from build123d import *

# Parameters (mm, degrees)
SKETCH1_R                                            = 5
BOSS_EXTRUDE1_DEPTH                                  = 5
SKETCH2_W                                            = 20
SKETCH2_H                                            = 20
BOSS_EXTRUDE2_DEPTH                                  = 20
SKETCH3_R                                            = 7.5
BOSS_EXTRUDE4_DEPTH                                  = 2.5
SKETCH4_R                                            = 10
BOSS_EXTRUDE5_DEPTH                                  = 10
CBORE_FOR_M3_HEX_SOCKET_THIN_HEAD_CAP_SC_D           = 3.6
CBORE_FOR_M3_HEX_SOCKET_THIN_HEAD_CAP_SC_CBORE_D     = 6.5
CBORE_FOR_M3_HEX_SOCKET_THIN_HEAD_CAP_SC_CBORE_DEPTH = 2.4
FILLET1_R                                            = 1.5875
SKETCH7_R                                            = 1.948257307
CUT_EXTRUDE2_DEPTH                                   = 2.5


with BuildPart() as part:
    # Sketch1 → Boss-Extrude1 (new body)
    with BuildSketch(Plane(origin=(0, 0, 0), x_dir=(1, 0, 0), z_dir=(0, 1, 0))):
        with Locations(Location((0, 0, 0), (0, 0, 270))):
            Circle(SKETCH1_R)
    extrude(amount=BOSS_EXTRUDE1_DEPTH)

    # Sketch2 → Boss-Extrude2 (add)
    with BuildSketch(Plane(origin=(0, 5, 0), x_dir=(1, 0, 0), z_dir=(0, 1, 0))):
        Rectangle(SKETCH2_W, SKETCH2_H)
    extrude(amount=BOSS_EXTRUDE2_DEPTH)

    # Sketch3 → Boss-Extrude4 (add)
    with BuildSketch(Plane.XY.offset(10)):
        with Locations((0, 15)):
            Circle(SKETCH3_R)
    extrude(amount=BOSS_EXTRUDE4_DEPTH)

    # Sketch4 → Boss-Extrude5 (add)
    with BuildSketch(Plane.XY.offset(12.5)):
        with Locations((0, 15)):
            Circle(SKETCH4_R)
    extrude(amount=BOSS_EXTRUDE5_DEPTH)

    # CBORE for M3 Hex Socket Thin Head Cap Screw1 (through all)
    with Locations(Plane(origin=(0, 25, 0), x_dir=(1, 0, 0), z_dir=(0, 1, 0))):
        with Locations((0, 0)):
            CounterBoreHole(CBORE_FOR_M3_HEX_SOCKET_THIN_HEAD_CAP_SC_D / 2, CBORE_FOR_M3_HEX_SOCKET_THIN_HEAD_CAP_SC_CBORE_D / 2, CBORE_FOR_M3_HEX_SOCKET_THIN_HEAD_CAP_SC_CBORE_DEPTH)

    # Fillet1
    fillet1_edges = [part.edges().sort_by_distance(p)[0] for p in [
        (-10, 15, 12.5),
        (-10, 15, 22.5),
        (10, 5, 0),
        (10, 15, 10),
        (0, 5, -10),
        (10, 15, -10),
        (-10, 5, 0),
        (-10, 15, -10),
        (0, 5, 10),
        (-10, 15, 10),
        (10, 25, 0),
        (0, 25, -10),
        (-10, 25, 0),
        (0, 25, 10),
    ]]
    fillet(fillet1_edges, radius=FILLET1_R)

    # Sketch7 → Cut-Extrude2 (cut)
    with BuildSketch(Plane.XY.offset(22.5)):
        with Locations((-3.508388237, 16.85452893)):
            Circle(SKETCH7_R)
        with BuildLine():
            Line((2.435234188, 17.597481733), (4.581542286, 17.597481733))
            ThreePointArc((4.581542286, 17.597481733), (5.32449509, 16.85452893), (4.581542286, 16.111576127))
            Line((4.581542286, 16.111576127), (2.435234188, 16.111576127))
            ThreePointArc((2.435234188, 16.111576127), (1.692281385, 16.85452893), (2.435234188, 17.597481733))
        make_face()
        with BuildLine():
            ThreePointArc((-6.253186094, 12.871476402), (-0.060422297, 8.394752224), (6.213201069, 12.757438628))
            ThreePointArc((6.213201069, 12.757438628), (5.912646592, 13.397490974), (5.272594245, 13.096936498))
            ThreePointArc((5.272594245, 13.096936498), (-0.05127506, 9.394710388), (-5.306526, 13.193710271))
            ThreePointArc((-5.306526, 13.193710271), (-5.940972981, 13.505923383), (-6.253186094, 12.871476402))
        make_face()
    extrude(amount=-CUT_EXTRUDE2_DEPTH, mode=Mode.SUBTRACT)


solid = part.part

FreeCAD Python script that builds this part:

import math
import FreeCAD as App
import Part
import Sketcher
from FreeCAD import Vector


def edges_at(feature, points):
    """Names of the edges that pass closest to the given points."""
    edges = feature.Shape.Edges
    near = lambda p: min(range(len(edges)), key=lambda i: edges[i].distToShape(Part.Vertex(*p))[0])
    return sorted({f"Edge{near(p) + 1}" for p in points})

doc = App.newDocument("Part")
params = doc.addObject("Spreadsheet::Sheet", "Params")
for row, (alias, value) in enumerate([
    ("sketch1_diameter", "10 mm"),
    ("pad1_length", "5 mm"),
    ("sketch2_width", "20 mm"),
    ("pad2_length", "20 mm"),
    ("sketch3_diameter", "15 mm"),
    ("pad3_length", "2.5 mm"),
    ("sketch4_diameter", "20 mm"),
    ("pad4_length", "10 mm"),
    ("sketch5_diameter", "3.6 mm"),
    ("hole_diameter", "3.6 mm"),
    ("hole_cbore_diameter", "6.5 mm"),
    ("hole_cbore_depth", "2.4 mm"),
    ("fillet_radius", "1.5875 mm"),
    ("sketch6_radius", "0.5 mm"),
    ("pocket1_length", "2.5 mm"),
], start=1):
    params.set(f"A{row}", alias)
    params.set(f"B{row}", "=" + value)
    params.setAlias(f"B{row}", alias)

body = doc.addObject("PartDesign::Body", "Body")

# Sketch on XZ plane
sketch1 = doc.addObject("Sketcher::SketchObject", "Sketch")
body.addObject(sketch1)
sketch1.AttachmentSupport = (doc.XZ_Plane, [""])
sketch1.MapMode = "FlatFace"
sketch1.addGeometry(Part.Circle(Vector(0, 0, 0), Vector(0, 0, 1), 5), False)
sketch1.addConstraint(Sketcher.Constraint("Coincident", 0, 3, -1, 1))
sketch1.addConstraint(Sketcher.Constraint("Diameter", 0, 10.0))
sketch1.setExpression("Constraints[1]", "Params.sketch1_diameter")
pad1 = doc.addObject("PartDesign::Pad", "Pad")
body.addObject(pad1)
pad1.Profile = sketch1
pad1.setExpression("Length", "Params.pad1_length")
pad1.Reversed = True

# Sketch on XZ plane
sketch2 = doc.addObject("Sketcher::SketchObject", "Sketch001")
body.addObject(sketch2)
sketch2.AttachmentSupport = (doc.XZ_Plane, [""])
sketch2.MapMode = "FlatFace"
sketch2.AttachmentOffset = App.Placement(Vector(0, 0, -5), App.Rotation())
sketch2.addGeometry(Part.LineSegment(Vector(-10, -10, 0), Vector(-10, 10, 0)), False)
sketch2.addGeometry(Part.LineSegment(Vector(-10, 10, 0), Vector(10, 10, 0)), False)
sketch2.addGeometry(Part.LineSegment(Vector(10, 10, 0), Vector(10, -10, 0)), False)
sketch2.addGeometry(Part.LineSegment(Vector(10, -10, 0), Vector(-10, -10, 0)), False)
sketch2.addConstraint(Sketcher.Constraint("Coincident", 0, 2, 1, 1))
sketch2.addConstraint(Sketcher.Constraint("Coincident", 1, 2, 2, 1))
sketch2.addConstraint(Sketcher.Constraint("Coincident", 2, 2, 3, 1))
sketch2.addConstraint(Sketcher.Constraint("Coincident", 3, 2, 0, 1))
sketch2.addConstraint(Sketcher.Constraint("Vertical", 0))
sketch2.addConstraint(Sketcher.Constraint("Horizontal", 1))
sketch2.addConstraint(Sketcher.Constraint("Vertical", 2))
sketch2.addConstraint(Sketcher.Constraint("Horizontal", 3))
sketch2.addConstraint(Sketcher.Constraint("Symmetric", 0, 2, 2, 2, -1, 1))
sketch2.addConstraint(Sketcher.Constraint("Equal", 3, 0))
sketch2.addConstraint(Sketcher.Constraint("DistanceX", 1, 1, 1, 2, 20.0))
sketch2.setExpression("Constraints[10]", "Params.sketch2_width")
pad2 = doc.addObject("PartDesign::Pad", "Pad001")
body.addObject(pad2)
pad2.Profile = sketch2
pad2.setExpression("Length", "Params.pad2_length")
pad2.Reversed = True

# Sketch on XY plane
sketch3 = doc.addObject("Sketcher::SketchObject", "Sketch002")
body.addObject(sketch3)
sketch3.AttachmentSupport = (doc.XY_Plane, [""])
sketch3.MapMode = "FlatFace"
sketch3.AttachmentOffset = App.Placement(Vector(0, 0, 10), App.Rotation())
sketch3.addGeometry(Part.Circle(Vector(0, 15, 0), Vector(0, 0, 1), 7.5), False)
sketch3.addConstraint(Sketcher.Constraint("PointOnObject", 0, 3, -2))
sketch3.addConstraint(Sketcher.Constraint("Diameter", 0, 15.0))
sketch3.addConstraint(Sketcher.Constraint("DistanceY", -1, 1, 0, 3, 15.0))
sketch3.setExpression("Constraints[1]", "Params.sketch3_diameter")
pad3 = doc.addObject("PartDesign::Pad", "Pad002")
body.addObject(pad3)
pad3.Profile = sketch3
pad3.setExpression("Length", "Params.pad3_length")

# Sketch on XY plane
sketch4 = doc.addObject("Sketcher::SketchObject", "Sketch003")
body.addObject(sketch4)
sketch4.AttachmentSupport = (doc.XY_Plane, [""])
sketch4.MapMode = "FlatFace"
sketch4.AttachmentOffset = App.Placement(Vector(0, 0, 12.5), App.Rotation())
sketch4.addGeometry(Part.Circle(Vector(0, 15, 0), Vector(0, 0, 1), 10), False)
sketch4.addConstraint(Sketcher.Constraint("PointOnObject", 0, 3, -2))
sketch4.addConstraint(Sketcher.Constraint("Diameter", 0, 20.0))
sketch4.addConstraint(Sketcher.Constraint("DistanceY", -1, 1, 0, 3, 15.0))
sketch4.setExpression("Constraints[1]", "Params.sketch4_diameter")
pad4 = doc.addObject("PartDesign::Pad", "Pad003")
body.addObject(pad4)
pad4.Profile = sketch4
pad4.setExpression("Length", "Params.pad4_length")

# Sketch on XZ plane
sketch5 = doc.addObject("Sketcher::SketchObject", "Sketch004")
body.addObject(sketch5)
sketch5.AttachmentSupport = (doc.XZ_Plane, [""])
sketch5.MapMode = "FlatFace"
sketch5.AttachmentOffset = App.Placement(Vector(0, 0, -25), App.Rotation())
sketch5.addGeometry(Part.Circle(Vector(0, 0, 0), Vector(0, 0, 1), 1.8), False)
sketch5.addConstraint(Sketcher.Constraint("Coincident", 0, 3, -1, 1))
sketch5.addConstraint(Sketcher.Constraint("Diameter", 0, 3.6))
sketch5.setExpression("Constraints[1]", "Params.sketch5_diameter")
doc.recompute()
hole = doc.addObject("PartDesign::Hole", "Hole")
body.addObject(hole)
hole.Profile = sketch5
hole.ThreadType = "None"
hole.setExpression("Diameter", "Params.hole_diameter")
hole.DepthType = "ThroughAll"
hole.HoleCutType = "Counterbore"
hole.setExpression("HoleCutDiameter", "Params.hole_cbore_diameter")
hole.setExpression("HoleCutDepth", "Params.hole_cbore_depth")
hole.Reversed = True
doc.recompute()

fillet = doc.addObject("PartDesign::Fillet", "Fillet")
body.addObject(fillet)
fillet.Base = (hole, edges_at(hole, [
    (-10, 15, 12.5),
    (-10, 15, 22.5),
    (10, 5, 0),
    (10, 15, 10),
    (0, 5, -10),
    (10, 15, -10),
    (-10, 5, 0),
    (-10, 15, -10),
    (0, 5, 10),
    (-10, 15, 10),
    (10, 25, 0),
    (0, 25, -10),
    (-10, 25, 0),
    (0, 25, 10),
]))
fillet.setExpression("Radius", "Params.fillet_radius")

# Sketch on XY plane
sketch6 = doc.addObject("Sketcher::SketchObject", "Sketch005")
body.addObject(sketch6)
sketch6.AttachmentSupport = (doc.XY_Plane, [""])
sketch6.MapMode = "FlatFace"
sketch6.AttachmentOffset = App.Placement(Vector(0, 0, 22.5), App.Rotation())
sketch6.addGeometry(Part.Circle(Vector(-3.508388, 16.854529, 0), Vector(0, 0, 1), 1.948257), False)
sketch6.addGeometry(Part.LineSegment(Vector(4.581542, 17.597482, 0), Vector(2.435234, 17.597482, 0)), False)
sketch6.addGeometry(Part.ArcOfCircle(Part.Circle(Vector(2.435234, 16.854529, 0), Vector(0, 0, 1), 0.742953), math.radians(90), math.radians(270)), False)
sketch6.addGeometry(Part.LineSegment(Vector(2.435234, 16.111576, 0), Vector(4.581542, 16.111576, 0)), False)
sketch6.addGeometry(Part.ArcOfCircle(Part.Circle(Vector(4.581542, 16.854529, 0), Vector(0, 0, 1), 0.742953), math.radians(-90), math.radians(90)), False)
sketch6.addGeometry(Part.ArcOfCircle(Part.Circle(Vector(0, 15, 0), Vector(0, 0, 1), 6.605524), math.radians(-161.201926), math.radians(-19.846285)), False)
sketch6.addGeometry(Part.ArcOfCircle(Part.Circle(Vector(5.742898, 12.927188, 0), Vector(0, 0, 1), 0.5), math.radians(-19.846284), math.radians(160.153715)), False)
sketch6.addGeometry(Part.ArcOfCircle(Part.Circle(Vector(0, 15, 0), Vector(0, 0, 1), 5.605524), math.radians(-161.201926), math.radians(-19.846285)), False)
sketch6.addGeometry(Part.ArcOfCircle(Part.Circle(Vector(-5.779856, 13.032593, 0), Vector(0, 0, 1), 0.5), math.radians(18.798074), math.radians(198.798074)), False)
sketch6.addConstraint(Sketcher.Constraint("Tangent", 1, 2, 2, 1))
sketch6.addConstraint(Sketcher.Constraint("Tangent", 2, 2, 3, 1))
sketch6.addConstraint(Sketcher.Constraint("Tangent", 3, 2, 4, 1))
sketch6.addConstraint(Sketcher.Constraint("Tangent", 4, 2, 1, 1))
sketch6.addConstraint(Sketcher.Constraint("Tangent", 5, 2, 6, 1))
sketch6.addConstraint(Sketcher.Constraint("Tangent", 6, 2, 7, 2))
sketch6.addConstraint(Sketcher.Constraint("Tangent", 7, 1, 8, 1))
sketch6.addConstraint(Sketcher.Constraint("Tangent", 8, 2, 5, 1))
sketch6.addConstraint(Sketcher.Constraint("Horizontal", 1))
sketch6.addConstraint(Sketcher.Constraint("Horizontal", 3))
sketch6.addConstraint(Sketcher.Constraint("Coincident", 7, 3, 5, 3))
sketch6.addConstraint(Sketcher.Constraint("PointOnObject", 5, 3, -2))
sketch6.addConstraint(Sketcher.Constraint("Horizontal", 0, 3, 2, 3))
sketch6.addConstraint(Sketcher.Constraint("Radius", 6, 0.5))
sketch6.addConstraint(Sketcher.Constraint("DistanceY", -1, 1, 5, 3, 15.0))
sketch6.addConstraint(Sketcher.Constraint("Diameter", 0, 3.896515))
sketch6.addConstraint(Sketcher.Constraint("Radius", 2, 0.742953))
sketch6.addConstraint(Sketcher.Constraint("Radius", 5, 6.605524))
sketch6.addConstraint(Sketcher.Constraint("DistanceX", 1, 2, 1, 1, 2.146308))
sketch6.addConstraint(Sketcher.Constraint("DistanceX", -1, 1, 5, 2, 6.213201))
sketch6.addConstraint(Sketcher.Constraint("DistanceX", 8, 3, 4, 3, 10.361398))
sketch6.addConstraint(Sketcher.Constraint("DistanceX", 0, 3, -1, 1, 3.508388))
sketch6.addConstraint(Sketcher.Constraint("DistanceY", -1, 1, 0, 3, 16.854529))
sketch6.addConstraint(Sketcher.Constraint("DistanceY", -1, 1, 7, 1, 13.19371))
sketch6.setExpression("Constraints[13]", "Params.sketch6_radius")
pocket1 = doc.addObject("PartDesign::Pocket", "Pocket")
body.addObject(pocket1)
pocket1.Profile = sketch6
pocket1.setExpression("Length", "Params.pocket1_length")

doc.recompute()
